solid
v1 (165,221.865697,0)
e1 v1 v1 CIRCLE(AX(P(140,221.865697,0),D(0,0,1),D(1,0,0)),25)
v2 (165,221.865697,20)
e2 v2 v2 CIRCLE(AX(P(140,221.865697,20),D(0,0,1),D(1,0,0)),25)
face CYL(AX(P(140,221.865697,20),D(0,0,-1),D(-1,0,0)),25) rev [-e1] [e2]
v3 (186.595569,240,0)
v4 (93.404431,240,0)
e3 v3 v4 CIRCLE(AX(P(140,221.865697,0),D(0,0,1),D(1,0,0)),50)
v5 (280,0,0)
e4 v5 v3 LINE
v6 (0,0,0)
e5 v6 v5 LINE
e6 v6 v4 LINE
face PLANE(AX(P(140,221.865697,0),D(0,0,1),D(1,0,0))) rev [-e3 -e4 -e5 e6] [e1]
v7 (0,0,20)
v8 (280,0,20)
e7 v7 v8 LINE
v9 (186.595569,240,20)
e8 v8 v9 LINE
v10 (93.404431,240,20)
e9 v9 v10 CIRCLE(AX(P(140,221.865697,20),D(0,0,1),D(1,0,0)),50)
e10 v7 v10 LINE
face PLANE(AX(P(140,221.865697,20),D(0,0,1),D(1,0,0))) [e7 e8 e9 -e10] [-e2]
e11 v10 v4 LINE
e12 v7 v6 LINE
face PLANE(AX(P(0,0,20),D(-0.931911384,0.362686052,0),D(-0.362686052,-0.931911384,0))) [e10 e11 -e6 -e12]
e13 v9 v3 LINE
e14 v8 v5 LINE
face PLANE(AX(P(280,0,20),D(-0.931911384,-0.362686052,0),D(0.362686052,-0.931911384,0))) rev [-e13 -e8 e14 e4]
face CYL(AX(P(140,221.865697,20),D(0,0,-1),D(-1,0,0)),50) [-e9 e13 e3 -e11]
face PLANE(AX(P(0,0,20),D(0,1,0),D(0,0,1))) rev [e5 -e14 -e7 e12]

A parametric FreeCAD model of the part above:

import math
import FreeCAD as App
import Part
import Sketcher

V = App.Vector
Q = App.Units.Quantity

doc = App.newDocument("Part")
body = doc.addObject("PartDesign::Body", "Body")

# Sketch on XY plane
sketch1 = body.newObject("Sketcher::SketchObject", "Sketch")
sketch1.AttachmentSupport = (doc.getObject("XY_Plane"), [""])
sketch1.MapMode = "FlatFace"
sketch1.addGeometry(Part.LineSegment(V(0, 0, 0), V(280, 0, 0)), False)
sketch1.addGeometry(Part.LineSegment(V(280, 0, 0), V(187, 240, 0)), False)
sketch1.addGeometry(Part.ArcOfCircle(Part.Circle(V(140, 222, 0), V(0, 0, 1), 50), math.radians(21), math.radians(159)), False)
sketch1.addGeometry(Part.LineSegment(V(93, 240, 0), V(0, 0, 0)), False)
sketch1.addGeometry(Part.Circle(V(140, 222, 0), V(0, 0, 1), 25), False)
sketch1.addConstraint(Sketcher.Constraint("Coincident", 0, 2, 1, 1))
sketch1.addConstraint(Sketcher.Constraint("Tangent", 1, 2, 2, 1))
sketch1.addConstraint(Sketcher.Constraint("Tangent", 2, 2, 3, 1))
sketch1.addConstraint(Sketcher.Constraint("Coincident", 3, 2, 0, 1))
sketch1.addConstraint(Sketcher.Constraint("Horizontal", 0))
sketch1.addConstraint(Sketcher.Constraint("Coincident", 3, 2, -1, 1))
sketch1.addConstraint(Sketcher.Constraint("Coincident", 4, 3, 2, 3))
sketch1.addConstraint(Sketcher.Constraint("Horizontal", 1, 2, 2, 2))
sketch1.addConstraint(Sketcher.Constraint("Diameter", 4, Q("50 mm")))
sketch1.addConstraint(Sketcher.Constraint("Radius", 2, Q("50 mm")))
sketch1.addConstraint(Sketcher.Constraint("DistanceX", 0, 1, 0, 2, Q("280 mm")))
sketch1.addConstraint(Sketcher.Constraint("DistanceY", -1, 1, 1, 2, Q("240 mm")))
pad1 = body.newObject("PartDesign::Pad", "Pad")
pad1.Profile = sketch1
pad1.Length = 20

doc.recompute()
